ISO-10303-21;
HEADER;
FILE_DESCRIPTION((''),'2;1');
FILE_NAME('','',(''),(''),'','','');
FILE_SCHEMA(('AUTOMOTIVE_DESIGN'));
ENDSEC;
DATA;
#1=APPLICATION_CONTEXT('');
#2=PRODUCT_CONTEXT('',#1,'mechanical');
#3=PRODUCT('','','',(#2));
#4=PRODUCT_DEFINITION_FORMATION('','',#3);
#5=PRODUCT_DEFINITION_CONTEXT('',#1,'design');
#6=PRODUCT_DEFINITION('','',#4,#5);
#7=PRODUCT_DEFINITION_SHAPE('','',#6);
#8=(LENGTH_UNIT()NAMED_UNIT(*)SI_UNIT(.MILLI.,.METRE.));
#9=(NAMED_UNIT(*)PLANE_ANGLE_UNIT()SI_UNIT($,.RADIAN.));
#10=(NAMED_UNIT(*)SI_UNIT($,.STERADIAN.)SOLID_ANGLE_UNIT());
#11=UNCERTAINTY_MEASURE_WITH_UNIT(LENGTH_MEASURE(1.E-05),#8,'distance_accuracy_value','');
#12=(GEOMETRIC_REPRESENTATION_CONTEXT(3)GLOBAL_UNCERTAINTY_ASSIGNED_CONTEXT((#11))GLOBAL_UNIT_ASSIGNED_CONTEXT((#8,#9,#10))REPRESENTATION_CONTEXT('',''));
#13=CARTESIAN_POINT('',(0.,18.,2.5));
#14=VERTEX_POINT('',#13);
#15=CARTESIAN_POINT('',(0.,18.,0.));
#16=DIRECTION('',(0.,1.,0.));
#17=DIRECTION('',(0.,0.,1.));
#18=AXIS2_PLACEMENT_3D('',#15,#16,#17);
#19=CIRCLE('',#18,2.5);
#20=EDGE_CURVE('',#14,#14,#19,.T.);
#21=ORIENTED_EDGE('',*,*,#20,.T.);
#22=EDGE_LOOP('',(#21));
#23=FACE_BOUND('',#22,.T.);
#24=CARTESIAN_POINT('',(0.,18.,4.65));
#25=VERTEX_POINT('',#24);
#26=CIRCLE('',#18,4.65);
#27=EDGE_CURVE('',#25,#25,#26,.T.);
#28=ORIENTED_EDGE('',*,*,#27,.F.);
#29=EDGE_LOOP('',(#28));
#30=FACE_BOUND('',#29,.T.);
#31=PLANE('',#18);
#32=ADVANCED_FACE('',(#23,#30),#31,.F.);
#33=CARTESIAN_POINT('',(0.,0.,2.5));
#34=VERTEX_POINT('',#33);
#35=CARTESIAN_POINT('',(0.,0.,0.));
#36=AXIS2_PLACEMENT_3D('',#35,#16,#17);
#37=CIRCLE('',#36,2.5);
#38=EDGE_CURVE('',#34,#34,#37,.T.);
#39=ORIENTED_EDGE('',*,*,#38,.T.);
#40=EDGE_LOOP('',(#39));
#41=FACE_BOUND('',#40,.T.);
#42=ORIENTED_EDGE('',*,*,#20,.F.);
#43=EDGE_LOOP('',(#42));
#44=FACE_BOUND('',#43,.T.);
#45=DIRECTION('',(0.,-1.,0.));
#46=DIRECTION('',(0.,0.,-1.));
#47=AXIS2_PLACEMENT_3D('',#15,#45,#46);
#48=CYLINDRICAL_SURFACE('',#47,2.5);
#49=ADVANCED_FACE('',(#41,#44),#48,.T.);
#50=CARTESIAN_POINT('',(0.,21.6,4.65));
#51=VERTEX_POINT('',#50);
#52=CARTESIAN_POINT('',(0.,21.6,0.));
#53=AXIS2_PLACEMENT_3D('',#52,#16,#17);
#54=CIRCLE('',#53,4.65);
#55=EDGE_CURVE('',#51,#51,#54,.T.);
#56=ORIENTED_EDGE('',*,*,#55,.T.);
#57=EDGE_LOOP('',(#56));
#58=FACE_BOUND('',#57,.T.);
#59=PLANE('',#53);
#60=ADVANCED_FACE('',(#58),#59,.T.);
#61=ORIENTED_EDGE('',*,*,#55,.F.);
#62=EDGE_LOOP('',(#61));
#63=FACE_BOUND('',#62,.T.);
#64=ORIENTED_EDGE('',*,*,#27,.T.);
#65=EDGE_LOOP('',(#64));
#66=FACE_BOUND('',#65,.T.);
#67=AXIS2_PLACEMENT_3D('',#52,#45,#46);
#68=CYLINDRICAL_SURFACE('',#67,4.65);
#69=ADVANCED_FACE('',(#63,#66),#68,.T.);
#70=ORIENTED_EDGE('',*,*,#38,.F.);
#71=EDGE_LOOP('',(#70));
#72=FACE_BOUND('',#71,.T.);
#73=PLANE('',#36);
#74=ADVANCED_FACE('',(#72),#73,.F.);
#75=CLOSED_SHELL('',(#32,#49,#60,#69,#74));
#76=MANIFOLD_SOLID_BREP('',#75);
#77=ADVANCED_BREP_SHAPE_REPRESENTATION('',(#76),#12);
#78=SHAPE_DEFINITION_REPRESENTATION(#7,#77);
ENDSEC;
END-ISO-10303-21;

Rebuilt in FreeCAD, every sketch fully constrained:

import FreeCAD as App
import Part
import Sketcher
from FreeCAD import Vector

doc = App.newDocument("Part")
params = doc.addObject("Spreadsheet::Sheet", "Params")
for row, (alias, value) in enumerate([
    ("sketch1_diameter", "5 mm"),
    ("pad1_length", "18 mm"),
    ("sketch2_diameter", "9.3 mm"),
    ("pad2_length", "3.6 mm"),
], start=1):
    params.set(f"A{row}", alias)
    params.set(f"B{row}", "=" + value)
    params.setAlias(f"B{row}", alias)

body = doc.addObject("PartDesign::Body", "Body")

# Sketch on XZ plane
sketch1 = doc.addObject("Sketcher::SketchObject", "Sketch")
body.addObject(sketch1)
sketch1.AttachmentSupport = (doc.XZ_Plane, [""])
sketch1.MapMode = "FlatFace"
sketch1.addGeometry(Part.Circle(Vector(0, 0, 0), Vector(0, 0, 1), 2.5), False)
sketch1.addConstraint([
    Sketcher.Constraint("Coincident", 0, 3, -1, 1),
    Sketcher.Constraint("Diameter", 0, 5.0),
])
sketch1.setExpression("Constraints[1]", "Params.sketch1_diameter")
pad1 = doc.addObject("PartDesign::Pad", "Pad")
body.addObject(pad1)
pad1.Profile = sketch1
pad1.setExpression("Length", "Params.pad1_length")
pad1.Reversed = True

# Sketch on XZ plane
sketch2 = doc.addObject("Sketcher::SketchObject", "Sketch001")
body.addObject(sketch2)
sketch2.AttachmentSupport = (doc.XZ_Plane, [""])
sketch2.MapMode = "FlatFace"
sketch2.AttachmentOffset = App.Placement(Vector(0, 0, -18), App.Rotation())
sketch2.addGeometry(Part.Circle(Vector(0, 0, 0), Vector(0, 0, 1), 4.7), False)
sketch2.addConstraint([
    Sketcher.Constraint("Coincident", 0, 3, -1, 1),
    Sketcher.Constraint("Diameter", 0, 9.3),
])
sketch2.setExpression("Constraints[1]", "Params.sketch2_diameter")
pad2 = doc.addObject("PartDesign::Pad", "Pad001")
body.addObject(pad2)
pad2.Profile = sketch2
pad2.setExpression("Length", "Params.pad2_length")
pad2.Reversed = True

doc.recompute()
